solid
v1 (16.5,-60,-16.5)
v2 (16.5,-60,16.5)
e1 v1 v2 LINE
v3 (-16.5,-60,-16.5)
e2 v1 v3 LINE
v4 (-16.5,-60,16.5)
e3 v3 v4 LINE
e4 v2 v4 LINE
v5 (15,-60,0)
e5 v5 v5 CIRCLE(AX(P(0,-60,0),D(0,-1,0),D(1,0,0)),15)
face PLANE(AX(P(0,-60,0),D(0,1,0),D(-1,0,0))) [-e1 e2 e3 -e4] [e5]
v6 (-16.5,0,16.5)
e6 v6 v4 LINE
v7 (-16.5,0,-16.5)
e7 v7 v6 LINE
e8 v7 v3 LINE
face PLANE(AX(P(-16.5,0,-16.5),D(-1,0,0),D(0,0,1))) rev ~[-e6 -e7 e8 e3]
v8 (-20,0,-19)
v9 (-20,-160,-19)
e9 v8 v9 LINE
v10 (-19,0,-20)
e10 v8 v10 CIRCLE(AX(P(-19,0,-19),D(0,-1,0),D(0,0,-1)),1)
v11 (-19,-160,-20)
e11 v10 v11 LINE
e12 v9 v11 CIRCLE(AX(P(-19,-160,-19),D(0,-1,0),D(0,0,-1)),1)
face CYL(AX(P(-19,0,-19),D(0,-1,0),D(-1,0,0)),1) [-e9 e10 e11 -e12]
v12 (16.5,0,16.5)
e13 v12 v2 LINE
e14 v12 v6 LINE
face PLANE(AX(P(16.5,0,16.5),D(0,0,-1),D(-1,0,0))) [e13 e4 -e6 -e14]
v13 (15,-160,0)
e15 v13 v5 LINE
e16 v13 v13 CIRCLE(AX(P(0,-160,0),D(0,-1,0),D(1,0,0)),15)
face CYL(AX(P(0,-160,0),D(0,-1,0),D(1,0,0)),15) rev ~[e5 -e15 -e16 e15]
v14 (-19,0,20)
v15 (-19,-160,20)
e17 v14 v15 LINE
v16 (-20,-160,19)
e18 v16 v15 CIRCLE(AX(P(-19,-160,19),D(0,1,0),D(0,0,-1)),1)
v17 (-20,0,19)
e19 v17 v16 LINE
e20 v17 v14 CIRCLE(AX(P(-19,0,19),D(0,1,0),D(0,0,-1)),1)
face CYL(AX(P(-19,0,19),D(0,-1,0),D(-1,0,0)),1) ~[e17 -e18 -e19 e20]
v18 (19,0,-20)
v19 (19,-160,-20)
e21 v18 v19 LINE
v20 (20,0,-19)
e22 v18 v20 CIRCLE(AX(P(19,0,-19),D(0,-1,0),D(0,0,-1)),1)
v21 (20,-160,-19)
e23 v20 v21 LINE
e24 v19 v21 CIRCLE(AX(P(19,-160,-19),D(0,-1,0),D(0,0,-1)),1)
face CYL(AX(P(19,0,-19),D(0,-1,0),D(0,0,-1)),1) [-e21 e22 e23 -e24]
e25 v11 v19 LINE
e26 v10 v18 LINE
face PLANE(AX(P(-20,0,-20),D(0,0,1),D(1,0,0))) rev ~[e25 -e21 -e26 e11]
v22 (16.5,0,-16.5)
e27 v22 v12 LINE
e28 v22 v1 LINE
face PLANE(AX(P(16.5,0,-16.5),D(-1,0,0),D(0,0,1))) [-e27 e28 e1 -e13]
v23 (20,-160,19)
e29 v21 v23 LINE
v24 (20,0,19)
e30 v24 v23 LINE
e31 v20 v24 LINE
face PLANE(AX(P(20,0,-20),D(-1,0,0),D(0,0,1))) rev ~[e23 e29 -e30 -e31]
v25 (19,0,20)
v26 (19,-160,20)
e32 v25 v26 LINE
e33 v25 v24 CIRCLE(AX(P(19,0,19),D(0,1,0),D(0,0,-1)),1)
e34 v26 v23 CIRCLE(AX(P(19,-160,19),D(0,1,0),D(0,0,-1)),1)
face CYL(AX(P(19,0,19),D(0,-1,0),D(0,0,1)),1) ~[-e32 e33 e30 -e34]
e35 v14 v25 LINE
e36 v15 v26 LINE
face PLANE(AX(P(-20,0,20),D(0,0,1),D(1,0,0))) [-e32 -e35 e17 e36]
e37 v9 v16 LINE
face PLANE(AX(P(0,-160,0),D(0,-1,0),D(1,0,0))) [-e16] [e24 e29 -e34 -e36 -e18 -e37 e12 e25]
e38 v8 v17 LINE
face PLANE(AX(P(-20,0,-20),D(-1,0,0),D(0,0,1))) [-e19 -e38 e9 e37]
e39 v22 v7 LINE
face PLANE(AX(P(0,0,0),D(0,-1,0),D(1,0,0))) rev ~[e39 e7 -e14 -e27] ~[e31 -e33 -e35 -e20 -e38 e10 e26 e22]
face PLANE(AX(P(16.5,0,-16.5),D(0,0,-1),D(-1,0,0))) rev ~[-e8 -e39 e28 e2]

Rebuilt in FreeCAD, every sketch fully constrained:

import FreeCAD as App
import Part
import Sketcher
Q = App.Units.Quantity


def edges_at(feature, points):
    """Names of the edges that pass closest to the given points."""
    edges = feature.Shape.Edges
    near = lambda p: min(range(len(edges)), key=lambda i: edges[i].distToShape(Part.Vertex(*p))[0])
    return sorted({f"Edge{near(p) + 1}" for p in points})

doc = App.newDocument("Part")
body = doc.addObject("PartDesign::Body", "Body")

# Sketch on XZ plane
sketch1 = doc.addObject("Sketcher::SketchObject", "Sketch")
body.addObject(sketch1)
sketch1.AttachmentSupport = (doc.XZ_Plane, [""])
sketch1.MapMode = "FlatFace"
sketch1.addGeometry([
    Part.LineSegment(App.Vector(-20, 20, 0), App.Vector(-20, -20, 0)),
    Part.LineSegment(App.Vector(-20, -20, 0), App.Vector(20, -20, 0)),
    Part.LineSegment(App.Vector(20, -20, 0), App.Vector(20, 20, 0)),
    Part.LineSegment(App.Vector(20, 20, 0), App.Vector(-20, 20, 0)),
], False)
sketch1.addConstraint([
    Sketcher.Constraint("Coincident", 0, 2, 1, 1),
    Sketcher.Constraint("Coincident", 1, 2, 2, 1),
    Sketcher.Constraint("Coincident", 2, 2, 3, 1),
    Sketcher.Constraint("Coincident", 3, 2, 0, 1),
    Sketcher.Constraint("Vertical", 0),
    Sketcher.Constraint("Horizontal", 1),
    Sketcher.Constraint("Vertical", 2),
    Sketcher.Constraint("Horizontal", 3),
    Sketcher.Constraint("Symmetric", 0, 2, 2, 2, -1, 1),
    Sketcher.Constraint("Equal", 3, 0),
    Sketcher.Constraint("DistanceX", 1, 1, 1, 2, Q("40 mm")),
])
pad1 = doc.addObject("PartDesign::Pad", "Pad")
body.addObject(pad1)
pad1.Profile = sketch1
pad1.Length = 160

# Sketch on XZ plane
sketch2 = doc.addObject("Sketcher::SketchObject", "Sketch001")
body.addObject(sketch2)
sketch2.AttachmentSupport = (doc.XZ_Plane, [""])
sketch2.MapMode = "FlatFace"
sketch2.AttachmentOffset = App.Placement(App.Vector(0, 0, 160), App.Rotation())
sketch2.addGeometry(Part.Circle(App.Vector(0, 0, 0), App.Vector(0, 0, 1), 15), False)
sketch2.addConstraint([
    Sketcher.Constraint("Coincident", 0, 3, -1, 1),
    Sketcher.Constraint("Diameter", 0, Q("30 mm")),
])
pocket1 = doc.addObject("PartDesign::Pocket", "Pocket")
body.addObject(pocket1)
pocket1.Profile = sketch2
pocket1.Length = 100

# Sketch on XZ plane
sketch3 = doc.addObject("Sketcher::SketchObject", "Sketch002")
body.addObject(sketch3)
sketch3.AttachmentSupport = (doc.XZ_Plane, [""])
sketch3.MapMode = "FlatFace"
sketch3.addGeometry([
    Part.LineSegment(App.Vector(16, 16, 0), App.Vector(16, -16, 0)),
    Part.LineSegment(App.Vector(16, -16, 0), App.Vector(-16, -16, 0)),
    Part.LineSegment(App.Vector(-16, -16, 0), App.Vector(-16, 16, 0)),
    Part.LineSegment(App.Vector(-16, 16, 0), App.Vector(16, 16, 0)),
], False)
sketch3.addConstraint([
    Sketcher.Constraint("Coincident", 0, 2, 1, 1),
    Sketcher.Constraint("Coincident", 1, 2, 2, 1),
    Sketcher.Constraint("Coincident", 2, 2, 3, 1),
    Sketcher.Constraint("Coincident", 3, 2, 0, 1),
    Sketcher.Constraint("Vertical", 0),
    Sketcher.Constraint("Horizontal", 1),
    Sketcher.Constraint("Vertical", 2),
    Sketcher.Constraint("Horizontal", 3),
    Sketcher.Constraint("Symmetric", 0, 2, 2, 2, -1, 1),
    Sketcher.Constraint("Equal", 3, 0),
    Sketcher.Constraint("DistanceX", 1, 2, 1, 1, Q("33 mm")),
])
pocket2 = doc.addObject("PartDesign::Pocket", "Pocket001")
body.addObject(pocket2)
pocket2.Profile = sketch3
pocket2.Length = 60
pocket2.Reversed = True
doc.recompute()

fillet = doc.addObject("PartDesign::Fillet", "Fillet")
body.addObject(fillet)
fillet.Base = (pocket2, edges_at(pocket2, [
    (20, -80, 20),
    (-20, -80, 20),
    (20, -80, -20),
    (-20, -80, -20),
]))
fillet.Radius = 1

doc.recompute()
